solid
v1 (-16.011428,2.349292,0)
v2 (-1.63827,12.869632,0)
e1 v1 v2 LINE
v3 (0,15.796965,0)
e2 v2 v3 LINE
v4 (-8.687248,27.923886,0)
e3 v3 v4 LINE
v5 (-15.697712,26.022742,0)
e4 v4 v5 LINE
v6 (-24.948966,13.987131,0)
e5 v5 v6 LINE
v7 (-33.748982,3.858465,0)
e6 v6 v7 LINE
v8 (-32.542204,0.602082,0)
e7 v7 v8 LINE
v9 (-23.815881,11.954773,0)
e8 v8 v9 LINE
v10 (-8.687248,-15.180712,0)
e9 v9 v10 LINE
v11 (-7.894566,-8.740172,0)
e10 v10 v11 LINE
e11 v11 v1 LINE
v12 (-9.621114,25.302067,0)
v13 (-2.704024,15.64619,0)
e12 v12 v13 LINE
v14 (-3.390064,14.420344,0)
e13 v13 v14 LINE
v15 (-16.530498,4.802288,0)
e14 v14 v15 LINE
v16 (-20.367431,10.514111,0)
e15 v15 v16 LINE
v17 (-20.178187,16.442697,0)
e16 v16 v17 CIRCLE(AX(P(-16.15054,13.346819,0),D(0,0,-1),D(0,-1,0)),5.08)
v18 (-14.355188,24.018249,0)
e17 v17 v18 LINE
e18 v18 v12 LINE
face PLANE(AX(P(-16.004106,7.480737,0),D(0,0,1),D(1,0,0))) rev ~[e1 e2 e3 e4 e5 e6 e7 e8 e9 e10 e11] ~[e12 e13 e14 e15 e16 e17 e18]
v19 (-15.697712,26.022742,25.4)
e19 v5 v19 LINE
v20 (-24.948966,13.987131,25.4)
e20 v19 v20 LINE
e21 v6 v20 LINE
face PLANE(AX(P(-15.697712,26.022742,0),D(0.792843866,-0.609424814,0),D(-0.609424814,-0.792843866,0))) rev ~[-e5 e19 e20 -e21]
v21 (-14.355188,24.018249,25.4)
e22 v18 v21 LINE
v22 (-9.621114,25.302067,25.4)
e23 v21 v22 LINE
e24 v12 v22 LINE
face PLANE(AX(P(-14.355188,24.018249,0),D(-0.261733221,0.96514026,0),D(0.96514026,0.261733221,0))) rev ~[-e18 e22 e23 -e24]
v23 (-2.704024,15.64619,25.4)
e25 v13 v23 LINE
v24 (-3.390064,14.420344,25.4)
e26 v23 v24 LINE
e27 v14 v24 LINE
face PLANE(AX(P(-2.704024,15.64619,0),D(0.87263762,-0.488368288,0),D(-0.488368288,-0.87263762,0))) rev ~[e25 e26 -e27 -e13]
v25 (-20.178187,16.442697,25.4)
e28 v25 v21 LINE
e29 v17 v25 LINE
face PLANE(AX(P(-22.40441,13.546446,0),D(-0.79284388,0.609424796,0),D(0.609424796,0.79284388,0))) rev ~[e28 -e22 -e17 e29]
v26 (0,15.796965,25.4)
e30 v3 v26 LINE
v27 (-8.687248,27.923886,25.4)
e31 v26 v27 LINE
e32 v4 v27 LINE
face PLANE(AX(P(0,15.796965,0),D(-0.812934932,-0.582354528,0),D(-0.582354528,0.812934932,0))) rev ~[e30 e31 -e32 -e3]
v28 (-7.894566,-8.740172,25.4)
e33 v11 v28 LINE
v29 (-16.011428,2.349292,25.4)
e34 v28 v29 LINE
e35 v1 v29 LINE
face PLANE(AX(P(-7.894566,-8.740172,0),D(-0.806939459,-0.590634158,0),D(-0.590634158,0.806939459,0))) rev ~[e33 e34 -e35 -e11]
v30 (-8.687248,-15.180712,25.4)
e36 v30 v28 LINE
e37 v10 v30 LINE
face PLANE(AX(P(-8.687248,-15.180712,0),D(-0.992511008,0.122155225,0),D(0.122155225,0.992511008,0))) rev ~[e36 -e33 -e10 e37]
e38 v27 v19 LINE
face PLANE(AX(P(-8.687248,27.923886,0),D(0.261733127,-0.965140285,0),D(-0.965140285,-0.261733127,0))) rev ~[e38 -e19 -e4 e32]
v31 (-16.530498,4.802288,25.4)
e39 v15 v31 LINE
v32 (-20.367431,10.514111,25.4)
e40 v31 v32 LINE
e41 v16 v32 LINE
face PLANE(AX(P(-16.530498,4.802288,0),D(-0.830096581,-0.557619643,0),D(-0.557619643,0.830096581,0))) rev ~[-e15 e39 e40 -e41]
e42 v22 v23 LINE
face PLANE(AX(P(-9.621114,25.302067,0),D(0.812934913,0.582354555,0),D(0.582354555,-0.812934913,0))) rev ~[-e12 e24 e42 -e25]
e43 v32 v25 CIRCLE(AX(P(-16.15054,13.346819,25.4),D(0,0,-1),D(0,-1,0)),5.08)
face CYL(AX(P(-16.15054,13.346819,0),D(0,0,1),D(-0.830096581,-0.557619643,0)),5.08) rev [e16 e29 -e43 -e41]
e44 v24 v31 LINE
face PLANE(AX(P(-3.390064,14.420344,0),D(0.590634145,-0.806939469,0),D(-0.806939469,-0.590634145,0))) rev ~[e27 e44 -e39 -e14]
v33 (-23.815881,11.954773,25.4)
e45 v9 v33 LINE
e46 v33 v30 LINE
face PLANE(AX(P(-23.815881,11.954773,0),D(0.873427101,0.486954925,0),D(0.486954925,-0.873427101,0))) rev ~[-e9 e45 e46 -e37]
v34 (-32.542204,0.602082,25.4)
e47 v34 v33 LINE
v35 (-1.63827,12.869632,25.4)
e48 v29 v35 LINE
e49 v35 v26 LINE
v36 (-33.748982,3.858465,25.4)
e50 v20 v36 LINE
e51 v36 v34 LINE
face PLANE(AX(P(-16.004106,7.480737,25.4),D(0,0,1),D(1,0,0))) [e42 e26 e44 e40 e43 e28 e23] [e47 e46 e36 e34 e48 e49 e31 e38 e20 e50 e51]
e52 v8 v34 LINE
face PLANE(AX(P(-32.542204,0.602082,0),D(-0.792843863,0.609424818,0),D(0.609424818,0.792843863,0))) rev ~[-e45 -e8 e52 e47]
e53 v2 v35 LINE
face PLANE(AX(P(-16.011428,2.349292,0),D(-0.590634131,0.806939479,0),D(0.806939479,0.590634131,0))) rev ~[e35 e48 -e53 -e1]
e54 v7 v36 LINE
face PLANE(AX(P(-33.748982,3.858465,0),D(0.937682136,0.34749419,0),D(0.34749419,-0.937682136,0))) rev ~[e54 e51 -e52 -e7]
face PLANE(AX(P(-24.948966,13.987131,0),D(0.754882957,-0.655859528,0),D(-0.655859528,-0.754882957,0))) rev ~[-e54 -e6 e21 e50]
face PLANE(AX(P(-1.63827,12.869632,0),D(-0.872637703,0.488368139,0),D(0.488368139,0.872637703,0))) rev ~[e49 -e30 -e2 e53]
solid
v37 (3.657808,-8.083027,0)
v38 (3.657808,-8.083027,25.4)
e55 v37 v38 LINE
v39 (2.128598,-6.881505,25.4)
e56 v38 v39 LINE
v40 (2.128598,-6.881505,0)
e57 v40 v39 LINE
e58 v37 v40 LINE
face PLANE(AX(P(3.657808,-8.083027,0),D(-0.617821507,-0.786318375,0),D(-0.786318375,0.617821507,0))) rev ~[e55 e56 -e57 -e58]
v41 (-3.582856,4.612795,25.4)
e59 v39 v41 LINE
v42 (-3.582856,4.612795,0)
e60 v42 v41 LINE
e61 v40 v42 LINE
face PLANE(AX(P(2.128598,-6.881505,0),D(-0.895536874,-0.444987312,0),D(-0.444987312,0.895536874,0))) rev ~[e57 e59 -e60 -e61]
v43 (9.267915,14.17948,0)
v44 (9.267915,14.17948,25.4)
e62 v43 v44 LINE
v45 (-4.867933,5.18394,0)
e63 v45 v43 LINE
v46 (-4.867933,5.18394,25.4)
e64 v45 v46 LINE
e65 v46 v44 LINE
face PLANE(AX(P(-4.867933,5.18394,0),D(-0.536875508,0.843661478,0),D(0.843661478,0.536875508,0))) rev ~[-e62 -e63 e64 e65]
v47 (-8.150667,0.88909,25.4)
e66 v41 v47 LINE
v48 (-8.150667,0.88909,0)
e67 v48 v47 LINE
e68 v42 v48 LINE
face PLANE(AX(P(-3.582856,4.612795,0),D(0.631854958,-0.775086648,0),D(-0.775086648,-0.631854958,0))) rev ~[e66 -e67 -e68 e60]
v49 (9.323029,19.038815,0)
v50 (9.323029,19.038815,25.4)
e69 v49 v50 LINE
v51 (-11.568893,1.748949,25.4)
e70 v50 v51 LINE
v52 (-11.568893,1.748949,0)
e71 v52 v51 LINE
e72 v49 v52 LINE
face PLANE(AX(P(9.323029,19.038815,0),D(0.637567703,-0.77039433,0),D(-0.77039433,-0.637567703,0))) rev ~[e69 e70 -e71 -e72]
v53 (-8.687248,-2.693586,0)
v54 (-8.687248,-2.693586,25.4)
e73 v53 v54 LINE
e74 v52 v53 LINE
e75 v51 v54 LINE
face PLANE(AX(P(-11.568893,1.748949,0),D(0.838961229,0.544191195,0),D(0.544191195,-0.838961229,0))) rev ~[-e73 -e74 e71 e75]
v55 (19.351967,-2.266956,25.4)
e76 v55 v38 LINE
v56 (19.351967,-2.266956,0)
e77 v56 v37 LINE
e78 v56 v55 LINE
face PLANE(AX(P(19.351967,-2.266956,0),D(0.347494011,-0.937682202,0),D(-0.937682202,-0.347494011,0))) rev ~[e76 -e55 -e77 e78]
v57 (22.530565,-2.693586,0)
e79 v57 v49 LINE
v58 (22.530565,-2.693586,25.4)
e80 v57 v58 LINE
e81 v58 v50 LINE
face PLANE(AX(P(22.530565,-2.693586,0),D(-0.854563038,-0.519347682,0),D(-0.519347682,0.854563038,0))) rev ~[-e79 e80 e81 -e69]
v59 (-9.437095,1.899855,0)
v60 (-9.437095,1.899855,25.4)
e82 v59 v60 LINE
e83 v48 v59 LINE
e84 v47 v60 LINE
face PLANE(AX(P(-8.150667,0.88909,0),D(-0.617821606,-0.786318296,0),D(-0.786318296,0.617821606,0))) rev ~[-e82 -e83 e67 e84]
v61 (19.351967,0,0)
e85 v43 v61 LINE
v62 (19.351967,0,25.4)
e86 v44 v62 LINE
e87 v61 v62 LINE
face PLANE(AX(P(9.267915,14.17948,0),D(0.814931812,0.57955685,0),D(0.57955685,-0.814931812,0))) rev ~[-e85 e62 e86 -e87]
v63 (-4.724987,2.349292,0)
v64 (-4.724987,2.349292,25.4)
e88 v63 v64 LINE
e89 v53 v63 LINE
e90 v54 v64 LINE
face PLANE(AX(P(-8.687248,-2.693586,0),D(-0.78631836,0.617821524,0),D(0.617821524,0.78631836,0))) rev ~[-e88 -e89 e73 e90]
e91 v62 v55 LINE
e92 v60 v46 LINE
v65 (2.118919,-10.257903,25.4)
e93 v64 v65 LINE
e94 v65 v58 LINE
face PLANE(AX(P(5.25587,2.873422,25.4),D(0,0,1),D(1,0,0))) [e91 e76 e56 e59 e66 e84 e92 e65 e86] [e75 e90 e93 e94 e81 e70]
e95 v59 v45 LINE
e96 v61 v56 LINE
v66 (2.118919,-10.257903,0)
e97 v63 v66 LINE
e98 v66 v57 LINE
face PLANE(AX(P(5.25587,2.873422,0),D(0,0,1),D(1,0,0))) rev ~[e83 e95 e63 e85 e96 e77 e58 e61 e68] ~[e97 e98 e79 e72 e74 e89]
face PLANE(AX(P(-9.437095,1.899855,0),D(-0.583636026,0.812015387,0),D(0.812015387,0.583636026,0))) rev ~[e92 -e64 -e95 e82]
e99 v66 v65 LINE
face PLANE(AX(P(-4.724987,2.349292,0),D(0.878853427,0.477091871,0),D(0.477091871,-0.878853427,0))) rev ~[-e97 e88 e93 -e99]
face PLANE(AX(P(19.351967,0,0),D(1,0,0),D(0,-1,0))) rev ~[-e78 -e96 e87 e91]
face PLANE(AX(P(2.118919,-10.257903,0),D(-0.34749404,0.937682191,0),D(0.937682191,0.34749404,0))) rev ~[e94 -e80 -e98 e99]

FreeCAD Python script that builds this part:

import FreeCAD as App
import Part
import Sketcher
from FreeCAD import Vector
Q = App.Units.Quantity


def edges_at(feature, points):
    """Names of the edges that pass closest to the given points."""
    edges = feature.Shape.Edges
    near = lambda p: min(range(len(edges)), key=lambda i: edges[i].distToShape(Part.Vertex(*p))[0])
    return sorted({f"Edge{near(p) + 1}" for p in points})

doc = App.newDocument("Part")
body = doc.addObject("PartDesign::Body", "Body")
body.AllowCompound = True

# Sketch on XY plane
sketch1 = doc.addObject("Sketcher::SketchObject", "Sketch")
body.addObject(sketch1)
sketch1.AttachmentSupport = (doc.XY_Plane, [""])
sketch1.MapMode = "FlatFace"
sketch1.addGeometry(Part.LineSegment(Vector(-8.687248, -15.180712, 0), Vector(-7.894566, -8.740172, 0)), False)
sketch1.addGeometry(Part.LineSegment(Vector(-7.894566, -8.740172, 0), Vector(-16.011428, 2.349292, 0)), False)
sketch1.addGeometry(Part.LineSegment(Vector(-16.011428, 2.349292, 0), Vector(-1.63827, 12.869632, 0)), False)
sketch1.addGeometry(Part.LineSegment(Vector(-1.63827, 12.869632, 0), Vector(0, 15.796965, 0)), False)
sketch1.addGeometry(Part.LineSegment(Vector(0, 15.796965, 0), Vector(-8.687248, 27.923886, 0)), False)
sketch1.addGeometry(Part.LineSegment(Vector(-8.687248, 27.923886, 0), Vector(-15.697712, 26.022742, 0)), False)
sketch1.addGeometry(Part.LineSegment(Vector(-15.697712, 26.022742, 0), Vector(-24.948966, 13.987131, 0)), False)
sketch1.addGeometry(Part.LineSegment(Vector(-24.948966, 13.987131, 0), Vector(-33.748982, 3.858465, 0)), False)
sketch1.addGeometry(Part.LineSegment(Vector(-33.748982, 3.858465, 0), Vector(-32.542204, 0.602082, 0)), False)
sketch1.addGeometry(Part.LineSegment(Vector(-32.542204, 0.602082, 0), Vector(-23.815881, 11.954773, 0)), False)
sketch1.addGeometry(Part.LineSegment(Vector(-23.815881, 11.954773, 0), Vector(-8.687248, -15.180712, 0)), False)
sketch1.addGeometry(Part.LineSegment(Vector(-16.530498, 4.802288, 0), Vector(-22.40441, 13.546446, 0)), False)
sketch1.addGeometry(Part.LineSegment(Vector(-22.40441, 13.546446, 0), Vector(-14.355188, 24.018249, 0)), False)
sketch1.addGeometry(Part.LineSegment(Vector(-14.355188, 24.018249, 0), Vector(-9.621114, 25.302067, 0)), False)
sketch1.addGeometry(Part.LineSegment(Vector(-9.621114, 25.302067, 0), Vector(-2.704024, 15.64619, 0)), False)
sketch1.addGeometry(Part.LineSegment(Vector(-2.704024, 15.64619, 0), Vector(-3.390064, 14.420344, 0)), False)
sketch1.addGeometry(Part.LineSegment(Vector(-3.390064, 14.420344, 0), Vector(-16.530498, 4.802288, 0)), False)
sketch1.addGeometry(Part.LineSegment(Vector(9.323029, 19.038815, 0), Vector(-11.568893, 1.748949, 0)), False)
sketch1.addGeometry(Part.LineSegment(Vector(-11.568893, 1.748949, 0), Vector(-8.687248, -2.693586, 0)), False)
sketch1.addGeometry(Part.LineSegment(Vector(-8.687248, -2.693586, 0), Vector(-4.724987, 2.349292, 0)), False)
sketch1.addGeometry(Part.LineSegment(Vector(-4.724987, 2.349292, 0), Vector(2.118919, -10.257903, 0)), False)
sketch1.addGeometry(Part.LineSegment(Vector(2.118919, -10.257903, 0), Vector(22.530565, -2.693586, 0)), False)
sketch1.addGeometry(Part.LineSegment(Vector(22.530565, -2.693586, 0), Vector(9.323029, 19.038815, 0)), False)
sketch1.addGeometry(Part.LineSegment(Vector(19.351967, -2.266956, 0), Vector(3.657808, -8.083027, 0)), False)
sketch1.addGeometry(Part.LineSegment(Vector(3.657808, -8.083027, 0), Vector(2.128598, -6.881505, 0)), False)
sketch1.addGeometry(Part.LineSegment(Vector(2.128598, -6.881505, 0), Vector(-3.582856, 4.612795, 0)), False)
sketch1.addGeometry(Part.LineSegment(Vector(-3.582856, 4.612795, 0), Vector(-8.150667, 0.88909, 0)), False)
sketch1.addGeometry(Part.LineSegment(Vector(-8.150667, 0.88909, 0), Vector(-9.437095, 1.899855, 0)), False)
sketch1.addGeometry(Part.LineSegment(Vector(-9.437095, 1.899855, 0), Vector(-4.867933, 5.18394, 0)), False)
sketch1.addGeometry(Part.LineSegment(Vector(-4.867933, 5.18394, 0), Vector(9.267915, 14.17948, 0)), False)
sketch1.addGeometry(Part.LineSegment(Vector(9.267915, 14.17948, 0), Vector(19.351967, 0, 0)), False)
sketch1.addGeometry(Part.LineSegment(Vector(19.351967, 0, 0), Vector(19.351967, -2.266956, 0)), False)
sketch1.addConstraint(Sketcher.Constraint("Coincident", 0, 2, 1, 1))
sketch1.addConstraint(Sketcher.Constraint("Coincident", 1, 2, 2, 1))
sketch1.addConstraint(Sketcher.Constraint("Coincident", 2, 2, 3, 1))
sketch1.addConstraint(Sketcher.Constraint("Coincident", 3, 2, 4, 1))
sketch1.addConstraint(Sketcher.Constraint("Coincident", 4, 2, 5, 1))
sketch1.addConstraint(Sketcher.Constraint("Coincident", 5, 2, 6, 1))
sketch1.addConstraint(Sketcher.Constraint("Coincident", 6, 2, 7, 1))
sketch1.addConstraint(Sketcher.Constraint("Coincident", 7, 2, 8, 1))
sketch1.addConstraint(Sketcher.Constraint("Coincident", 8, 2, 9, 1))
sketch1.addConstraint(Sketcher.Constraint("Coincident", 9, 2, 10, 1))
sketch1.addConstraint(Sketcher.Constraint("Coincident", 10, 2, 0, 1))
sketch1.addConstraint(Sketcher.Constraint("Coincident", 11, 2, 12, 1))
sketch1.addConstraint(Sketcher.Constraint("Coincident", 12, 2, 13, 1))
sketch1.addConstraint(Sketcher.Constraint("Coincident", 13, 2, 14, 1))
sketch1.addConstraint(Sketcher.Constraint("Coincident", 14, 2, 15, 1))
sketch1.addConstraint(Sketcher.Constraint("Coincident", 15, 2, 16, 1))
sketch1.addConstraint(Sketcher.Constraint("Coincident", 16, 2, 11, 1))
sketch1.addConstraint(Sketcher.Constraint("Coincident", 17, 2, 18, 1))
sketch1.addConstraint(Sketcher.Constraint("Coincident", 18, 2, 19, 1))
sketch1.addConstraint(Sketcher.Constraint("Coincident", 19, 2, 20, 1))
sketch1.addConstraint(Sketcher.Constraint("Coincident", 20, 2, 21, 1))
sketch1.addConstraint(Sketcher.Constraint("Coincident", 21, 2, 22, 1))
sketch1.addConstraint(Sketcher.Constraint("Coincident", 22, 2, 17, 1))
sketch1.addConstraint(Sketcher.Constraint("Coincident", 23, 2, 24, 1))
sketch1.addConstraint(Sketcher.Constraint("Coincident", 24, 2, 25, 1))
sketch1.addConstraint(Sketcher.Constraint("Coincident", 25, 2, 26, 1))
sketch1.addConstraint(Sketcher.Constraint("Coincident", 26, 2, 27, 1))
sketch1.addConstraint(Sketcher.Constraint("Coincident", 27, 2, 28, 1))
sketch1.addConstraint(Sketcher.Constraint("Coincident", 28, 2, 29, 1))
sketch1.addConstraint(Sketcher.Constraint("Coincident", 29, 2, 30, 1))
sketch1.addConstraint(Sketcher.Constraint("Coincident", 30, 2, 31, 1))
sketch1.addConstraint(Sketcher.Constraint("Coincident", 31, 2, 23, 1))
sketch1.addConstraint(Sketcher.Constraint("Vertical", 31))
sketch1.addConstraint(Sketcher.Constraint("PointOnObject", 3, 2, -2))
sketch1.addConstraint(Sketcher.Constraint("PointOnObject", 30, 2, -1))
sketch1.addConstraint(Sketcher.Constraint("DistanceX", 7, 2, -1, 1, Q("1.3287001 in")))
sketch1.addConstraint(Sketcher.Constraint("Distance", 8, Q("3.472801 mm")))
sketch1.addConstraint(Sketcher.Constraint("Distance", 12, Q("13.2079 mm")))
sketch1.addConstraint(Sketcher.Constraint("Distance", 14, Q("11.877798 mm")))
sketch1.addConstraint(Sketcher.Constraint("DistanceX", 16, 2, -1, 1, Q("16.530498 mm")))
sketch1.addConstraint(Sketcher.Constraint("DistanceX", -1, 1, 24, 2, Q("2.128598 mm")))
sketch1.addConstraint(Sketcher.Constraint("DistanceY", 2, 2, 6, 2, Q("1.117499 mm")))
sketch1.addConstraint(Sketcher.Constraint("DistanceX", 7, 2, 9, 2, Q("9.933101 mm")))
sketch1.addConstraint(Sketcher.Constraint("DistanceX", 2, 2, 22, 2, Q("10.961299 mm")))
sketch1.addConstraint(Sketcher.Constraint("DistanceY", 20, 2, 24, 2, Q("3.376398 mm")))
sketch1.addConstraint(Sketcher.Constraint("DistanceX", 30, 2, 21, 2, Q("3.178598 mm")))
sketch1.addConstraint(Sketcher.Constraint("Distance", 2, Q("17.811941 mm")))
sketch1.addConstraint(Sketcher.Constraint("Distance", 3, Q("3.35458 mm")))
sketch1.addConstraint(Sketcher.Constraint("Distance", 7, Q("13.417532 mm")))
sketch1.addConstraint(Sketcher.Constraint("Distance", 9, Q("14.318949 mm")))
sketch1.addConstraint(Sketcher.Constraint("Distance", 10, Q("31.06783 mm")))
sketch1.addConstraint(Sketcher.Constraint("Distance", 15, Q("1.40476 mm")))
sketch1.addConstraint(Sketcher.Constraint("Distance", 17, Q("27.118478 mm")))
sketch1.addConstraint(Sketcher.Constraint("Distance", 18, Q("5.29528 mm")))
sketch1.addConstraint(Sketcher.Constraint("Distance", 20, Q("14.345048 mm")))
sketch1.addConstraint(Sketcher.Constraint("Distance", 22, Q("25.43101 mm")))
sketch1.addConstraint(Sketcher.Constraint("Distance", 26, Q("5.893291 mm")))
sketch1.addConstraint(Sketcher.Constraint("Distance", 28, Q("5.62694 mm")))
sketch1.addConstraint(Sketcher.Constraint("Distance", 30, Q("17.399591 mm")))
sketch1.addConstraint(Sketcher.Constraint("DistanceY", 31, 2, 31, 1, Q("2.266956 mm")))
sketch1.addConstraint(Sketcher.Constraint("DistanceY", 0, 2, -1, 1, Q("8.740172 mm")))
sketch1.addConstraint(Sketcher.Constraint("DistanceX", 2, 2, -1, 1, Q("1.63827 mm")))
sketch1.addConstraint(Sketcher.Constraint("DistanceY", -1, 1, 2, 2, Q("12.869632 mm")))
sketch1.addConstraint(Sketcher.Constraint("DistanceX", 5, 2, -1, 1, Q("15.697712 mm")))
sketch1.addConstraint(Sketcher.Constraint("DistanceX", 11, 2, -1, 1, Q("22.40441 mm")))
sketch1.addConstraint(Sketcher.Constraint("DistanceY", -1, 1, 12, 2, Q("24.018249 mm")))
sketch1.addConstraint(Sketcher.Constraint("DistanceY", -1, 1, 14, 2, Q("15.64619 mm")))
sketch1.addConstraint(Sketcher.Constraint("DistanceY", -1, 1, 17, 2, Q("1.748949 mm")))
sketch1.addConstraint(Sketcher.Constraint("DistanceX", -1, 1, 20, 2, Q("2.118919 mm")))
sketch1.addConstraint(Sketcher.Constraint("DistanceX", -1, 1, 23, 2, Q("3.657808 mm")))
sketch1.addConstraint(Sketcher.Constraint("DistanceY", -1, 1, 26, 2, Q("0.88909 mm")))
sketch1.addConstraint(Sketcher.Constraint("DistanceY", -1, 1, 28, 2, Q("5.18394 mm")))
sketch1.addConstraint(Sketcher.Constraint("DistanceY", -1, 1, 29, 2, Q("14.17948 mm")))
sketch1.addConstraint(Sketcher.Constraint("DistanceX", 1, 2, 0, 2, Q("8.116862 mm")))
sketch1.addConstraint(Sketcher.Constraint("DistanceY", 1, 2, 2, 2, Q("10.52034 mm")))
sketch1.addConstraint(Sketcher.Constraint("DistanceY", 3, 2, 4, 2, Q("12.126921 mm")))
sketch1.addConstraint(Sketcher.Constraint("DistanceX", 1, 2, 4, 2, Q("7.32418 mm")))
sketch1.addConstraint(Sketcher.Constraint("DistanceY", 2, 2, 5, 2, Q("13.15311 mm")))
sketch1.addConstraint(Sketcher.Constraint("DistanceY", 8, 2, 6, 2, Q("13.385049 mm")))
sketch1.addConstraint(Sketcher.Constraint("DistanceX", 8, 2, 5, 2, Q("16.844492 mm")))
sketch1.addConstraint(Sketcher.Constraint("DistanceY", 10, 2, 0, 2, Q("6.44054 mm")))
sketch1.addConstraint(Sketcher.Constraint("DistanceY", 7, 2, 11, 2, Q("9.687981 mm")))
sketch1.addConstraint(Sketcher.Constraint("DistanceY", 13, 2, 4, 2, Q("2.621819 mm")))
sketch1.addConstraint(Sketcher.Constraint("DistanceX", 15, 2, 14, 2, Q("0.68604 mm")))
sketch1.addConstraint(Sketcher.Constraint("DistanceY", 0, 2, 16, 2, Q("13.54246 mm")))
sketch1.addConstraint(Sketcher.Constraint("DistanceX", 17, 2, 15, 2, Q("8.178829 mm")))
sketch1.addConstraint(Sketcher.Constraint("DistanceX", 1, 2, 18, 2, Q("7.32418 mm")))
sketch1.addConstraint(Sketcher.Constraint("DistanceX", 18, 2, 19, 2, Q("3.962261 mm")))
sketch1.addConstraint(Sketcher.Constraint("DistanceY", 19, 2, 2, 2, Q("10.52034 mm")))
sketch1.addConstraint(Sketcher.Constraint("DistanceX", 17, 2, 20, 2, Q("13.687812 mm")))
sketch1.addConstraint(Sketcher.Constraint("DistanceX", 19, 2, 21, 2, Q("27.255552 mm")))
sketch1.addConstraint(Sketcher.Constraint("DistanceY", 23, 2, 19, 2, Q("10.432319 mm")))
sketch1.addConstraint(Sketcher.Constraint("DistanceX", 19, 2, 25, 2, Q("1.142131 mm")))
sketch1.addConstraint(Sketcher.Constraint("DistanceY", 18, 2, 25, 2, Q("7.306381 mm")))
sketch1.addConstraint(Sketcher.Constraint("DistanceY", 18, 2, 27, 2, Q("4.593441 mm")))
sketch1.addConstraint(Sketcher.Constraint("DistanceX", 27, 2, 25, 2, Q("5.854239 mm")))
pad1 = doc.addObject("PartDesign::Pad", "Pad")
body.addObject(pad1)
pad1.Profile = sketch1
pad1.Length = Q("1 in")
doc.recompute()

fillet = doc.addObject("PartDesign::Fillet", "Fillet")
body.addObject(fillet)
fillet.Base = (pad1, edges_at(pad1, [(-22.404, 13.546, 12.7)]))
fillet.Radius = Q("0.2 in")

doc.recompute()
